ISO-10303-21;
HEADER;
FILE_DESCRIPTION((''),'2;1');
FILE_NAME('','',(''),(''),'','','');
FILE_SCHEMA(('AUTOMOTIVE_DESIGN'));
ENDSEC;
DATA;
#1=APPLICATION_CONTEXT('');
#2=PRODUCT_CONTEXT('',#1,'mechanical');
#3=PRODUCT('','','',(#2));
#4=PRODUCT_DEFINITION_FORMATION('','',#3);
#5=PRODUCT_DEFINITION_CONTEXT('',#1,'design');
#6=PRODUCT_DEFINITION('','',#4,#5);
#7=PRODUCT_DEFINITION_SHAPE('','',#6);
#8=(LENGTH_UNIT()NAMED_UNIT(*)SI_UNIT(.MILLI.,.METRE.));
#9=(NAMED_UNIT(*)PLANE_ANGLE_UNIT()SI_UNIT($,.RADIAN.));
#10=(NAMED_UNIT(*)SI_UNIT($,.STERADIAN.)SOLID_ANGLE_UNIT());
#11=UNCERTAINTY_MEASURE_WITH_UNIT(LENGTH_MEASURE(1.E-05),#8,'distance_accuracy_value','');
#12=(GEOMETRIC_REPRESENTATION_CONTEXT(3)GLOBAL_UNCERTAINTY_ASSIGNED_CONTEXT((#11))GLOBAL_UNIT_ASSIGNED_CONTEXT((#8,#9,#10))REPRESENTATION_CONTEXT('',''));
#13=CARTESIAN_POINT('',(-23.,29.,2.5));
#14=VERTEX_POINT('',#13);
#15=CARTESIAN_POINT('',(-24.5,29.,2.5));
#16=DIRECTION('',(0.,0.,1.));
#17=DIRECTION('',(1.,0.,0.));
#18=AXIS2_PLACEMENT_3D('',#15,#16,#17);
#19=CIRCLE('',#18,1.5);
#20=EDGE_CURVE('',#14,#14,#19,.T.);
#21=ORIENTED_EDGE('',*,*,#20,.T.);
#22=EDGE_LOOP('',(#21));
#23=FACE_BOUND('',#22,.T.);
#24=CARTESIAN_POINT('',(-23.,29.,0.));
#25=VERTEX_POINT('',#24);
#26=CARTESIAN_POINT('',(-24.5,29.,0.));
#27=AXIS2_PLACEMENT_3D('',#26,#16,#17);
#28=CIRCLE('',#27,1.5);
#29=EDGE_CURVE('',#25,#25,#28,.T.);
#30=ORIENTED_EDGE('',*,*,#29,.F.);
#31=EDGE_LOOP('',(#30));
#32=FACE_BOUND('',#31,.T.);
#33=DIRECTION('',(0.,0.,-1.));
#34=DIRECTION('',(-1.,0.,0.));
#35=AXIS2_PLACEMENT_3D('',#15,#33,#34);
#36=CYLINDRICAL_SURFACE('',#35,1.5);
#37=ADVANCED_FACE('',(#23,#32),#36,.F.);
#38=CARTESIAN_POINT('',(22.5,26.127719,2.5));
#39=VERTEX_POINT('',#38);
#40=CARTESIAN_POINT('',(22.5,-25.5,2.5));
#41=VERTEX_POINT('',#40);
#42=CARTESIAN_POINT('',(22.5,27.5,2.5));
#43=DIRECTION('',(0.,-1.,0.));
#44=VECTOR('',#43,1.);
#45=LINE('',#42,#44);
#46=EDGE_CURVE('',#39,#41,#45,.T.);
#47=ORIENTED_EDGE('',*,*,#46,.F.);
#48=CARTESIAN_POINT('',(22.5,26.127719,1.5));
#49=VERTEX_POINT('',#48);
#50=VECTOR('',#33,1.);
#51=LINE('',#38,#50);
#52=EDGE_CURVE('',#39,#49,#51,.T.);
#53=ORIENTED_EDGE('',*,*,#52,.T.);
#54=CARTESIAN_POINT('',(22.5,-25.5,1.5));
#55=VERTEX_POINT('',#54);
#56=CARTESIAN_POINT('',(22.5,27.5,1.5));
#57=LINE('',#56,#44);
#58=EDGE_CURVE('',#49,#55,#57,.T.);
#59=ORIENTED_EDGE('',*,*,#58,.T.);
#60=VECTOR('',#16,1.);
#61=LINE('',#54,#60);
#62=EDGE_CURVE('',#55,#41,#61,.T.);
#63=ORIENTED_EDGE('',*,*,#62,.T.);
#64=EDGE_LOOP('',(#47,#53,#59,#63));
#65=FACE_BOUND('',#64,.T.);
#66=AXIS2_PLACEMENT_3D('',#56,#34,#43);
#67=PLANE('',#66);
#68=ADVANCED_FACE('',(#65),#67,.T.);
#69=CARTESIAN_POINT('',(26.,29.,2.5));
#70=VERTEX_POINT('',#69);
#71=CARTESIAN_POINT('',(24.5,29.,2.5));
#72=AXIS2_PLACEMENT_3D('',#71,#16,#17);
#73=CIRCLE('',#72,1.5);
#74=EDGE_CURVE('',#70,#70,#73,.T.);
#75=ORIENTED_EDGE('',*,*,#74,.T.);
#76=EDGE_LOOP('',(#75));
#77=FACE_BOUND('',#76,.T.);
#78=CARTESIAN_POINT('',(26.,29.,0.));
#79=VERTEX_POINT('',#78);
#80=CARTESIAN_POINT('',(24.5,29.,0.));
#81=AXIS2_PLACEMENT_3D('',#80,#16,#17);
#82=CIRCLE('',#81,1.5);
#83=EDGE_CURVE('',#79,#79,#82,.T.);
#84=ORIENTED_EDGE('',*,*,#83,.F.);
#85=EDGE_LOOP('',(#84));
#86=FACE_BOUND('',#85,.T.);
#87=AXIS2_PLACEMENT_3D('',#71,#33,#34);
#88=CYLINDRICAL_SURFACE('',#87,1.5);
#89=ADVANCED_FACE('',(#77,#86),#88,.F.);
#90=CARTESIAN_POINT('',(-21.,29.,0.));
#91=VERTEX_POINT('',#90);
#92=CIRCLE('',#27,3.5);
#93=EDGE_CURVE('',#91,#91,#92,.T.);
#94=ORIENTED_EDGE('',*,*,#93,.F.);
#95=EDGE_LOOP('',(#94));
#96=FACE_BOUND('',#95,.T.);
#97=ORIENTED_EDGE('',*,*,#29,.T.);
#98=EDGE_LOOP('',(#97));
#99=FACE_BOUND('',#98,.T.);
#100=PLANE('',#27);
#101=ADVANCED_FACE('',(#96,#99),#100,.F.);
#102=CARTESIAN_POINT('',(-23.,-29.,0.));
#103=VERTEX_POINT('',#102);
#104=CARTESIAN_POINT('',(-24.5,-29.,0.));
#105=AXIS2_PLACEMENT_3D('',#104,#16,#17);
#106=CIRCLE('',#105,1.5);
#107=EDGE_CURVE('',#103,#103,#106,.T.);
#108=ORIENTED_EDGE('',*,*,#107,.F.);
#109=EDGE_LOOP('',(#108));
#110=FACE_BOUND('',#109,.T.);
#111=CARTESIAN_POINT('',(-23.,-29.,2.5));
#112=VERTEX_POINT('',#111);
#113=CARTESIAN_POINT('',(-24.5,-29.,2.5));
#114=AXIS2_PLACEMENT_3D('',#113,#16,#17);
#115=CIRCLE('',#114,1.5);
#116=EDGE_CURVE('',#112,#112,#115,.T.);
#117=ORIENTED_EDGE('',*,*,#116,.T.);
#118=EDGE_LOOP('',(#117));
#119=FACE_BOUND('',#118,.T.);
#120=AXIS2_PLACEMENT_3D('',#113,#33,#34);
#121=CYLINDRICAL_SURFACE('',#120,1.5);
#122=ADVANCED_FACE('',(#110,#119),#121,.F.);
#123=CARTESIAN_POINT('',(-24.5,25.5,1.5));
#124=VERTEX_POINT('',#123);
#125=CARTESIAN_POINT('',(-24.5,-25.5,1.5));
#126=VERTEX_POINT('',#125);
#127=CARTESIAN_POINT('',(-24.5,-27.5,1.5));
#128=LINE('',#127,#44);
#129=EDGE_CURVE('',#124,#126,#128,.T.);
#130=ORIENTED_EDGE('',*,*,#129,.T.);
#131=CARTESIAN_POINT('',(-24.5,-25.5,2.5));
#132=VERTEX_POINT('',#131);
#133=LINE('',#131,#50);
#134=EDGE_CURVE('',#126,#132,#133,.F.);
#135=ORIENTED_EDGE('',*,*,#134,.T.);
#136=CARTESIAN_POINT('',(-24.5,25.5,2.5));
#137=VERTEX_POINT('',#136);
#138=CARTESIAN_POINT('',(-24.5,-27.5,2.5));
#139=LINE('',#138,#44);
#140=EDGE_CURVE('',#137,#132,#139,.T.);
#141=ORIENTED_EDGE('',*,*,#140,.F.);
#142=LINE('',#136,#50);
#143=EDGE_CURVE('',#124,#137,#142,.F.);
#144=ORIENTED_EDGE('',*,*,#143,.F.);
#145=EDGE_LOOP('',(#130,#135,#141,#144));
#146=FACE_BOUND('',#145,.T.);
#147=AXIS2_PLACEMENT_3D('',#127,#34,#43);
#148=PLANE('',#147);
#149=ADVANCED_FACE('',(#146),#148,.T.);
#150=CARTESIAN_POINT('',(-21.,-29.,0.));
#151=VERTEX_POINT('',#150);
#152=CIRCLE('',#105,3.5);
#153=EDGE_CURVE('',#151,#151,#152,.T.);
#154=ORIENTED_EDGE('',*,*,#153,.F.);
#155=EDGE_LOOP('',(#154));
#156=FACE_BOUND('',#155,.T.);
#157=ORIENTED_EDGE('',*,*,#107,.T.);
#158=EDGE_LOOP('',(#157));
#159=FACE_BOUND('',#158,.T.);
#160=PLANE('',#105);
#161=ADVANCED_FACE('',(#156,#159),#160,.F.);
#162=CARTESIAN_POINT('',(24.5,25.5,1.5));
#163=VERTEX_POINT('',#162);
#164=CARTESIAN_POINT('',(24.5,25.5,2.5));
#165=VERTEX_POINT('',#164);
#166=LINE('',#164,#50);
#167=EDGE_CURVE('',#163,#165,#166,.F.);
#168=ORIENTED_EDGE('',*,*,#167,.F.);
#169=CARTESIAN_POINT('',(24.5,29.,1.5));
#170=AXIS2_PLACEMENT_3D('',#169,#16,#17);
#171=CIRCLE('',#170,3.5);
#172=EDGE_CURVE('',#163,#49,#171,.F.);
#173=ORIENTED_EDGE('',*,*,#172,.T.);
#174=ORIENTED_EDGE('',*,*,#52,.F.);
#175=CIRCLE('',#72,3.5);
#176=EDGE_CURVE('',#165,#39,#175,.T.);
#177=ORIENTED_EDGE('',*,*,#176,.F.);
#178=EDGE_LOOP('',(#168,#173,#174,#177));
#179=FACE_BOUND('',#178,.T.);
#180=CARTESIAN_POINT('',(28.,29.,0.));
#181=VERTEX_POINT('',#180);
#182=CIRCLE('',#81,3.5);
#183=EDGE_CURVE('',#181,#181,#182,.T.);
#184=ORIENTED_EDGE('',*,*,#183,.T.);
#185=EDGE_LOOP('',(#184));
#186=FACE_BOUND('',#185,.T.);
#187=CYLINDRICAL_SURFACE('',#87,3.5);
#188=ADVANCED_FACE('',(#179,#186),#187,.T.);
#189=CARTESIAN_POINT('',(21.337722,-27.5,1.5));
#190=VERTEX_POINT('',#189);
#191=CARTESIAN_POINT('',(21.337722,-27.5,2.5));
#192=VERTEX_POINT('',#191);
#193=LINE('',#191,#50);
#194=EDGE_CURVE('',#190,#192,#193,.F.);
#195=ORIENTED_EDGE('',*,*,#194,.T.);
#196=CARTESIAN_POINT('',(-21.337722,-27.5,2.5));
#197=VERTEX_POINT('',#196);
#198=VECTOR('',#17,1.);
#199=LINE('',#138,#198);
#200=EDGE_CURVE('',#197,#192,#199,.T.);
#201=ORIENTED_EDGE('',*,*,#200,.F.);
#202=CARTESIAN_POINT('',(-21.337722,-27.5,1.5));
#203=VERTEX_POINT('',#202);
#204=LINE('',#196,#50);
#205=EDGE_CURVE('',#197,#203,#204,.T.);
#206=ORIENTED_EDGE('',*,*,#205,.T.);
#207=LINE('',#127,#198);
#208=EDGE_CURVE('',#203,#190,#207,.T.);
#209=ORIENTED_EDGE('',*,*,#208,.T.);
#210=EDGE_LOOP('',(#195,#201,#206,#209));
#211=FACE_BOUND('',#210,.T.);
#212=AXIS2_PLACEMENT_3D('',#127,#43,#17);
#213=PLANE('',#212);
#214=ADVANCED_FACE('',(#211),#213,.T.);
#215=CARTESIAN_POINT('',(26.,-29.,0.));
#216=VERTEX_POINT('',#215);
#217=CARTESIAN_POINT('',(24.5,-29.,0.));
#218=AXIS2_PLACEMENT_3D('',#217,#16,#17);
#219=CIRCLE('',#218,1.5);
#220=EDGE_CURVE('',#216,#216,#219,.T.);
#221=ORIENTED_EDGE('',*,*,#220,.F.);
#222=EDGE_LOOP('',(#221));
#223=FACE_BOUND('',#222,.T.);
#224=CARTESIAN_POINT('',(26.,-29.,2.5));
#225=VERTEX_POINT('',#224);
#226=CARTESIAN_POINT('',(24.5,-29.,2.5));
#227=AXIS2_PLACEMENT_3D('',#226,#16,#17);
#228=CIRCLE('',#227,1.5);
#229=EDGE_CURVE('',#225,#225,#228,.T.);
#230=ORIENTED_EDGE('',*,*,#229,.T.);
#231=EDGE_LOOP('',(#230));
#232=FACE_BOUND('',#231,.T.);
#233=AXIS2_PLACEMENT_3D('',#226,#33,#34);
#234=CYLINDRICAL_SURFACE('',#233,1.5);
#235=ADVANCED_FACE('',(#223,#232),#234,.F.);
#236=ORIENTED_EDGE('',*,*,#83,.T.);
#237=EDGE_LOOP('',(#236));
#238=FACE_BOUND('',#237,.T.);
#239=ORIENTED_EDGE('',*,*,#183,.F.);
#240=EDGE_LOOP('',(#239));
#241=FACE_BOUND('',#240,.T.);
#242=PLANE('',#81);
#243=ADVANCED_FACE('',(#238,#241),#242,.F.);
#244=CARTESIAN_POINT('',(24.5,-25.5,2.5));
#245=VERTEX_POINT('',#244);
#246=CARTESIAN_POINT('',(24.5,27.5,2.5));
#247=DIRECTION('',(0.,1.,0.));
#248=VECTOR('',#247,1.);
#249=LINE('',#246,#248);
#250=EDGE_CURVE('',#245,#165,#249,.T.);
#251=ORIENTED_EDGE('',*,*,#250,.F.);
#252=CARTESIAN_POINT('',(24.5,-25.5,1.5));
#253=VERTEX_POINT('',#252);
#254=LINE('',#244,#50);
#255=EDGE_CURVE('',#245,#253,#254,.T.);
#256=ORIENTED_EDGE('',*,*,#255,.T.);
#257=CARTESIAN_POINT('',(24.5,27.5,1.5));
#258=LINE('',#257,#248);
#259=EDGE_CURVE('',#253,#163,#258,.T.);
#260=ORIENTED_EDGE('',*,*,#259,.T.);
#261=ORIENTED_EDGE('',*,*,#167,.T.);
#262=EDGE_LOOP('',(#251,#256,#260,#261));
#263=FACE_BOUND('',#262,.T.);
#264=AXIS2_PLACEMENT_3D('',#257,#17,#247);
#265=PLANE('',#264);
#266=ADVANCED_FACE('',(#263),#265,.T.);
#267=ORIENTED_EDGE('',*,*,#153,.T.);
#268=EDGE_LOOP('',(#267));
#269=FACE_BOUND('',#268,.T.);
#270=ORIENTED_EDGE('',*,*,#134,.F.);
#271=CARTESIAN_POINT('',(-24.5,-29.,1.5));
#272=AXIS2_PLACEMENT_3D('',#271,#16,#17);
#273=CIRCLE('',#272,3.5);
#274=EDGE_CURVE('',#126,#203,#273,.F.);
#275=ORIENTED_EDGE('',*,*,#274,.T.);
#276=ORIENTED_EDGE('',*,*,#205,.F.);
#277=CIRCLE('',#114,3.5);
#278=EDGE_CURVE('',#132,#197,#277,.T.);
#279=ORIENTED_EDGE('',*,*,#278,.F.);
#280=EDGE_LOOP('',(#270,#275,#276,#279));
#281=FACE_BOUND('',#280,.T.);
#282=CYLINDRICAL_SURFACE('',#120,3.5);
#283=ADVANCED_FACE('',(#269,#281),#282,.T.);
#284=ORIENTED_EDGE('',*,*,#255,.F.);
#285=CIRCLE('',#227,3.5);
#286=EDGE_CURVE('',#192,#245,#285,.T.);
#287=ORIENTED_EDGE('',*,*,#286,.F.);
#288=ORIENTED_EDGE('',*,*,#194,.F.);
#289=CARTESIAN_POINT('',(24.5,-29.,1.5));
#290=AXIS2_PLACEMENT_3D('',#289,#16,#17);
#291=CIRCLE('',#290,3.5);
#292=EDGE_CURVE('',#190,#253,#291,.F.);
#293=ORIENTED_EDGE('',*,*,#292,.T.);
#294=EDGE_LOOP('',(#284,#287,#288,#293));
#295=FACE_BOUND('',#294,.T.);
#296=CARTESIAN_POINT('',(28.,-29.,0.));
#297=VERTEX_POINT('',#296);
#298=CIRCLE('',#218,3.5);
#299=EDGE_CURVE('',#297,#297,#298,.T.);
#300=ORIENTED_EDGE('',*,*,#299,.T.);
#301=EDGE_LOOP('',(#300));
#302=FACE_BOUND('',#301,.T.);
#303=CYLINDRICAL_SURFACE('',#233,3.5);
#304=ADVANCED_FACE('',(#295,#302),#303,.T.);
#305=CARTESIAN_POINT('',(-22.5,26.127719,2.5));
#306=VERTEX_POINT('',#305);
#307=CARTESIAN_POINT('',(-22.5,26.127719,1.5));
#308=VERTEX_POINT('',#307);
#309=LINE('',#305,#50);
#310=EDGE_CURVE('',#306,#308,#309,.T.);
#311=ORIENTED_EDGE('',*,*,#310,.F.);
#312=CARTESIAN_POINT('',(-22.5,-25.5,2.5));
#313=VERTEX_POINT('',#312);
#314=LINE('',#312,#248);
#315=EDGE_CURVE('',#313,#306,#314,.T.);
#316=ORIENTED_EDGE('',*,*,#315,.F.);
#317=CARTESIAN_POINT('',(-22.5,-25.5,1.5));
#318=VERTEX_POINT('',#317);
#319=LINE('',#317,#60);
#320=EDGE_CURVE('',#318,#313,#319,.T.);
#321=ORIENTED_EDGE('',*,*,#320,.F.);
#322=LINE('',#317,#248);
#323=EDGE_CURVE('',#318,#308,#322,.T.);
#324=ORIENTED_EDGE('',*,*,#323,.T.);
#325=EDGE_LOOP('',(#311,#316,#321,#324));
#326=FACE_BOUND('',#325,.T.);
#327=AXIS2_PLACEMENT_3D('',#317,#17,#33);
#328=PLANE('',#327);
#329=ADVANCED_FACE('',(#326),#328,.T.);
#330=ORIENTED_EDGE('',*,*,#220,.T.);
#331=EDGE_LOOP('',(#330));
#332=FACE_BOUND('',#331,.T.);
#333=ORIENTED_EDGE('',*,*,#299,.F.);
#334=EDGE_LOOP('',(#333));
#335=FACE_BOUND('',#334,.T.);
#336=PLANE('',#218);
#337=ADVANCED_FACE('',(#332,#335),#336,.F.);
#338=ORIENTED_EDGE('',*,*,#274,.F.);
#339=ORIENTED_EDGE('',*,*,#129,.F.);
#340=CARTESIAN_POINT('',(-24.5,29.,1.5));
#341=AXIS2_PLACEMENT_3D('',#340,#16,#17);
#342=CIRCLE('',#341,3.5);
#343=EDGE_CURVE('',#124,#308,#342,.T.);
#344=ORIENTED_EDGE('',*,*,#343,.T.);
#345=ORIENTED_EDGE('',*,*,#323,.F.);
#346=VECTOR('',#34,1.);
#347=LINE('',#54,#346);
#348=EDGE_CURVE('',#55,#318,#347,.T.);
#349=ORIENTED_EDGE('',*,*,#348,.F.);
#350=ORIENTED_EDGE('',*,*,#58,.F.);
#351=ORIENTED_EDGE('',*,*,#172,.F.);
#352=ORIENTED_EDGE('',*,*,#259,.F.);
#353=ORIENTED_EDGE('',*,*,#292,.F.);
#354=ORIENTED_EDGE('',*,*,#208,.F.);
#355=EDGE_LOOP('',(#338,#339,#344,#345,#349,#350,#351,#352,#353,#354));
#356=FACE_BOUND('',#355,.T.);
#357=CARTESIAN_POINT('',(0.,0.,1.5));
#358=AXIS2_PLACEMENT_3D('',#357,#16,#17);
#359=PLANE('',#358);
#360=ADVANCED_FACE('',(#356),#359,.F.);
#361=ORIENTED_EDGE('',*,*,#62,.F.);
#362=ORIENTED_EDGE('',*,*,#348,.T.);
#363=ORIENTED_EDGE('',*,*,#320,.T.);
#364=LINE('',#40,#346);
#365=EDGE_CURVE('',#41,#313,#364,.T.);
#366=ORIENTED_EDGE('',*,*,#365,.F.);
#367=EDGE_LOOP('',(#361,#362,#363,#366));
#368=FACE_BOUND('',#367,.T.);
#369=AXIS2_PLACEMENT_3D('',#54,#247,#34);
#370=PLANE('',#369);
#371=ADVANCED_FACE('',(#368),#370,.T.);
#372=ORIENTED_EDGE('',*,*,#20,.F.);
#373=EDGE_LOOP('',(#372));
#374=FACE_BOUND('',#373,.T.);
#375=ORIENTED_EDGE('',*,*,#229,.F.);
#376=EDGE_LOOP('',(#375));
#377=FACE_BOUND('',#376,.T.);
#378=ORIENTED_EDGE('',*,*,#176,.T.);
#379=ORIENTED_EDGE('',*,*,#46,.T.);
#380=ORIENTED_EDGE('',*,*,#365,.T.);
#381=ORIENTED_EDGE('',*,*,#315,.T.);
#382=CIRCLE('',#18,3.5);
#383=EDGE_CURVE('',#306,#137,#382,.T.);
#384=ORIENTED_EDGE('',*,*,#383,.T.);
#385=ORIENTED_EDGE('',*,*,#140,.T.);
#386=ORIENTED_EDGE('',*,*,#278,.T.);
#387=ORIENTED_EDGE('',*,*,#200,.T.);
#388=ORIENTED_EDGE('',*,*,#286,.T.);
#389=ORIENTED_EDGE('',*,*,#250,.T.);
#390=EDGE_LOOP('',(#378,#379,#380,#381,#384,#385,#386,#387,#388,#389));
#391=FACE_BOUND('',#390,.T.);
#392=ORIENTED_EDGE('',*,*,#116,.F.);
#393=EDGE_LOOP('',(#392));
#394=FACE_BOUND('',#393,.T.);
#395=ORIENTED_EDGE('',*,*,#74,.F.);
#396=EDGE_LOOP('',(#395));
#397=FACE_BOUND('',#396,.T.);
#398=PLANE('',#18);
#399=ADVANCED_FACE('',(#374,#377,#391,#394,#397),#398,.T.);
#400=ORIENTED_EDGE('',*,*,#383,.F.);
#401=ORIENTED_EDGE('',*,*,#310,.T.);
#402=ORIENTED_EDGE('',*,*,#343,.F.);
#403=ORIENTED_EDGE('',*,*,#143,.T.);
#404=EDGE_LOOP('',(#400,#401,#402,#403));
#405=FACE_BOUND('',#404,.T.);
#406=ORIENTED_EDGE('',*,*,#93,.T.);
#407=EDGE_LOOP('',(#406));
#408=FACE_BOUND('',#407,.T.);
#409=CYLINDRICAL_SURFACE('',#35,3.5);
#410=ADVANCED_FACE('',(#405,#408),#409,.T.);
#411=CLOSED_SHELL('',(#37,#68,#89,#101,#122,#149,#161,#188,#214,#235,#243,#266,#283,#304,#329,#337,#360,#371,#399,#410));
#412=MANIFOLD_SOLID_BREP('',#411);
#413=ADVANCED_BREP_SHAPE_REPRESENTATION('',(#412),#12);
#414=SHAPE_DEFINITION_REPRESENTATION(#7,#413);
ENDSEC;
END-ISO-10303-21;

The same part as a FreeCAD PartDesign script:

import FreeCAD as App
import Part
import Sketcher
from FreeCAD import Vector
Q = App.Units.Quantity

doc = App.newDocument("Part")
body = doc.addObject("PartDesign::Body", "Body")

# Sketch on XY plane
sketch1 = body.newObject("Sketcher::SketchObject", "Sketch")
sketch1.AttachmentSupport = (doc.getObject("XY_Plane"), [""])
sketch1.MapMode = "FlatFace"
sketch1.addGeometry([
    Part.Circle(Vector(-24.5, 29, 0), Vector(0, 0, 1), 3.5),
    Part.Circle(Vector(-24.5, 29, 0), Vector(0, 0, 1), 1.5),
], False)
sketch1.addConstraint([
    Sketcher.Constraint("Coincident", 1, 3, 0, 3),
    Sketcher.Constraint("Diameter", 0, Q("7 mm")),
    Sketcher.Constraint("Diameter", 1, Q("3 mm")),
    Sketcher.Constraint("DistanceY", -1, 1, 0, 3, Q("29 mm")),
    Sketcher.Constraint("DistanceX", 0, 3, -1, 1, Q("24.5 mm")),
])
pad1 = body.newObject("PartDesign::Pad", "Pad")
pad1.Profile = sketch1
pad1.Length = 2.5
body2 = doc.addObject("PartDesign::Body", "Body001")

# Sketch on XY plane
sketch2 = body2.newObject("Sketcher::SketchObject", "Sketch001")
sketch2.AttachmentSupport = (doc.getObject("XY_Plane001"), [""])
sketch2.MapMode = "FlatFace"
sketch2.addGeometry([
    Part.Circle(Vector(24.5, 29, 0), Vector(0, 0, 1), 3.5),
    Part.Circle(Vector(24.5, 29, 0), Vector(0, 0, 1), 1.5),
], False)
sketch2.addConstraint([
    Sketcher.Constraint("Coincident", 1, 3, 0, 3),
    Sketcher.Constraint("Diameter", 0, Q("7 mm")),
    Sketcher.Constraint("Diameter", 1, Q("3 mm")),
    Sketcher.Constraint("DistanceY", -1, 1, 0, 3, Q("29 mm")),
    Sketcher.Constraint("DistanceX", -1, 1, 0, 3, Q("24.5 mm")),
])
pad2 = body2.newObject("PartDesign::Pad", "Pad001")
pad2.Profile = sketch2
pad2.Length = 2.5
body3 = doc.addObject("PartDesign::Body", "Body002")

# Sketch on XY plane
sketch3 = body3.newObject("Sketcher::SketchObject", "Sketch002")
sketch3.AttachmentSupport = (doc.getObject("XY_Plane002"), [""])
sketch3.MapMode = "FlatFace"
sketch3.addGeometry([
    Part.Circle(Vector(-24.5, -29, 0), Vector(0, 0, 1), 3.5),
    Part.Circle(Vector(-24.5, -29, 0), Vector(0, 0, 1), 1.5),
], False)
sketch3.addConstraint([
    Sketcher.Constraint("Coincident", 1, 3, 0, 3),
    Sketcher.Constraint("Diameter", 0, Q("7 mm")),
    Sketcher.Constraint("Diameter", 1, Q("3 mm")),
    Sketcher.Constraint("DistanceY", 0, 3, -1, 1, Q("29 mm")),
    Sketcher.Constraint("DistanceX", 0, 3, -1, 1, Q("24.5 mm")),
])
pad3 = body3.newObject("PartDesign::Pad", "Pad002")
pad3.Profile = sketch3
pad3.Length = 2.5
body4 = doc.addObject("PartDesign::Body", "Body003")

# Sketch on XY plane
sketch4 = body4.newObject("Sketcher::SketchObject", "Sketch003")
sketch4.AttachmentSupport = (doc.getObject("XY_Plane003"), [""])
sketch4.MapMode = "FlatFace"
sketch4.addGeometry([
    Part.Circle(Vector(24.5, -29, 0), Vector(0, 0, 1), 3.5),
    Part.Circle(Vector(24.5, -29, 0), Vector(0, 0, 1), 1.5),
], False)
sketch4.addConstraint([
    Sketcher.Constraint("Coincident", 1, 3, 0, 3),
    Sketcher.Constraint("Diameter", 0, Q("7 mm")),
    Sketcher.Constraint("Diameter", 1, Q("3 mm")),
    Sketcher.Constraint("DistanceY", 0, 3, -1, 1, Q("29 mm")),
    Sketcher.Constraint("DistanceX", -1, 1, 0, 3, Q("24.5 mm")),
])
pad4 = body4.newObject("PartDesign::Pad", "Pad003")
pad4.Profile = sketch4
pad4.Length = 2.5
body.AllowCompound = True
doc.recompute()

boolean = body.newObject("PartDesign::Boolean", "Boolean")
boolean.Type = "Fuse"
boolean.addObjects([body2])
doc.recompute()

boolean2 = body.newObject("PartDesign::Boolean", "Boolean001")
boolean2.Type = "Fuse"
boolean2.addObjects([body3])
doc.recompute()

boolean3 = body.newObject("PartDesign::Boolean", "Boolean002")
boolean3.Type = "Fuse"
boolean3.addObjects([body4])

# Sketch on XY plane
sketch5 = body.newObject("Sketcher::SketchObject", "Sketch004")
sketch5.AttachmentSupport = (doc.getObject("XY_Plane"), [""])
sketch5.MapMode = "FlatFace"
sketch5.AttachmentOffset = App.Placement(Vector(0, 0, 2.5), App.Rotation())
sketch5.addGeometry([
    Part.LineSegment(Vector(24.5, -27.5, 0), Vector(24.5, 27.5, 0)),  # 0
    Part.LineSegment(Vector(24.5, 27.5, 0), Vector(22.5, 27.5, 0)),  # 1
    Part.LineSegment(Vector(22.5, 27.5, 0), Vector(22.5, -25.5, 0)),  # 2
    Part.LineSegment(Vector(22.5, -25.5, 0), Vector(-22.5, -25.5, 0)),  # 3
    Part.LineSegment(Vector(-22.5, -25.5, 0), Vector(-22.5, 27.5, 0)),  # 4
    Part.LineSegment(Vector(-22.5, 27.5, 0), Vector(-24.5, 27.5, 0)),  # 5
    Part.LineSegment(Vector(-24.5, 27.5, 0), Vector(-24.5, -27.5, 0)),  # 6
    Part.LineSegment(Vector(-24.5, -27.5, 0), Vector(24.5, -27.5, 0)),  # 7
], False)
sketch5.addConstraint([
    Sketcher.Constraint("Coincident", 0, 2, 1, 1),
    Sketcher.Constraint("Coincident", 1, 2, 2, 1),
    Sketcher.Constraint("Coincident", 2, 2, 3, 1),
    Sketcher.Constraint("Coincident", 3, 2, 4, 1),
    Sketcher.Constraint("Coincident", 4, 2, 5, 1),
    Sketcher.Constraint("Coincident", 5, 2, 6, 1),
    Sketcher.Constraint("Coincident", 6, 2, 7, 1),
    Sketcher.Constraint("Coincident", 7, 2, 0, 1),
    Sketcher.Constraint("Vertical", 0),
    Sketcher.Constraint("Horizontal", 1),
    Sketcher.Constraint("Vertical", 2),
    Sketcher.Constraint("Horizontal", 3),
    Sketcher.Constraint("Vertical", 4),
    Sketcher.Constraint("Horizontal", 5),
    Sketcher.Constraint("Vertical", 6),
    Sketcher.Constraint("Horizontal", 7),
    Sketcher.Constraint("Symmetric", 0, 2, 6, 2, -1, 1),
    Sketcher.Constraint("Symmetric", 1, 2, 4, 2, -2),
    Sketcher.Constraint("DistanceX", 1, 2, 1, 1, Q("2 mm")),
    Sketcher.Constraint("DistanceX", 3, 2, 3, 1, Q("45 mm")),
    Sketcher.Constraint("DistanceY", 0, 1, 0, 2, Q("55 mm")),
    Sketcher.Constraint("DistanceY", 2, 2, 2, 1, Q("53 mm")),
])
pad5 = body.newObject("PartDesign::Pad", "Pad004")
pad5.Profile = sketch5
pad5.Length = 1
pad5.Reversed = True

doc.recompute()
